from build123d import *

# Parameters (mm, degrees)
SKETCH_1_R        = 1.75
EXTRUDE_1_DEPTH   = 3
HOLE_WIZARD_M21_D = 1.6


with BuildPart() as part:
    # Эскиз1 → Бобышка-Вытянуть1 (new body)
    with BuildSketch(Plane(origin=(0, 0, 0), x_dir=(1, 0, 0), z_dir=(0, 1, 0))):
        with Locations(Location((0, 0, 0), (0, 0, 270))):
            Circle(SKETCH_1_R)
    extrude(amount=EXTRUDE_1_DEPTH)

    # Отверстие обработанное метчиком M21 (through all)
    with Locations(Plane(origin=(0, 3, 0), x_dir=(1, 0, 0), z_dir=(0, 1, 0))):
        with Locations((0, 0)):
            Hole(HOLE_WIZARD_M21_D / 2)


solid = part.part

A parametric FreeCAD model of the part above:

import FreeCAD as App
import Part
import Sketcher

V = App.Vector

doc = App.newDocument("Part")
body = doc.addObject("PartDesign::Body", "Body")

# Sketch on XZ plane
sketch1 = body.newObject("Sketcher::SketchObject", "Sketch")
sketch1.AttachmentSupport = (doc.getObject("XZ_Plane"), [""])
sketch1.MapMode = "FlatFace"
sketch1.addGeometry(Part.Circle(V(0, 0, 0), V(0, 0, 1), 1.8), False)
sketch1.addConstraint([
    Sketcher.Constraint("Coincident", 0, 3, -1, 1),
    Sketcher.Constraint("Diameter", 0, 3.5),
])
pad1 = body.newObject("PartDesign::Pad", "Pad")
pad1.Profile = sketch1
pad1.Length = 3
pad1.Reversed = True

# Sketch on XZ plane
sketch2 = body.newObject("Sketcher::SketchObject", "Sketch001")
sketch2.AttachmentSupport = (doc.getObject("XZ_Plane"), [""])
sketch2.MapMode = "FlatFace"
sketch2.AttachmentOffset = App.Placement(V(0, 0, -3), App.Rotation())
sketch2.addGeometry(Part.Circle(V(0, 0, 0), V(0, 0, 1), 0.8), False)
sketch2.addConstraint([
    Sketcher.Constraint("Coincident", 0, 3, -1, 1),
    Sketcher.Constraint("Diameter", 0, 1.6),
])
doc.recompute()
hole = body.newObject("PartDesign::Hole", "Hole")
hole.Profile = sketch2
hole.ThreadType = "None"
hole.Diameter = 1.6
hole.DepthType = "ThroughAll"
hole.Reversed = True

doc.recompute()
